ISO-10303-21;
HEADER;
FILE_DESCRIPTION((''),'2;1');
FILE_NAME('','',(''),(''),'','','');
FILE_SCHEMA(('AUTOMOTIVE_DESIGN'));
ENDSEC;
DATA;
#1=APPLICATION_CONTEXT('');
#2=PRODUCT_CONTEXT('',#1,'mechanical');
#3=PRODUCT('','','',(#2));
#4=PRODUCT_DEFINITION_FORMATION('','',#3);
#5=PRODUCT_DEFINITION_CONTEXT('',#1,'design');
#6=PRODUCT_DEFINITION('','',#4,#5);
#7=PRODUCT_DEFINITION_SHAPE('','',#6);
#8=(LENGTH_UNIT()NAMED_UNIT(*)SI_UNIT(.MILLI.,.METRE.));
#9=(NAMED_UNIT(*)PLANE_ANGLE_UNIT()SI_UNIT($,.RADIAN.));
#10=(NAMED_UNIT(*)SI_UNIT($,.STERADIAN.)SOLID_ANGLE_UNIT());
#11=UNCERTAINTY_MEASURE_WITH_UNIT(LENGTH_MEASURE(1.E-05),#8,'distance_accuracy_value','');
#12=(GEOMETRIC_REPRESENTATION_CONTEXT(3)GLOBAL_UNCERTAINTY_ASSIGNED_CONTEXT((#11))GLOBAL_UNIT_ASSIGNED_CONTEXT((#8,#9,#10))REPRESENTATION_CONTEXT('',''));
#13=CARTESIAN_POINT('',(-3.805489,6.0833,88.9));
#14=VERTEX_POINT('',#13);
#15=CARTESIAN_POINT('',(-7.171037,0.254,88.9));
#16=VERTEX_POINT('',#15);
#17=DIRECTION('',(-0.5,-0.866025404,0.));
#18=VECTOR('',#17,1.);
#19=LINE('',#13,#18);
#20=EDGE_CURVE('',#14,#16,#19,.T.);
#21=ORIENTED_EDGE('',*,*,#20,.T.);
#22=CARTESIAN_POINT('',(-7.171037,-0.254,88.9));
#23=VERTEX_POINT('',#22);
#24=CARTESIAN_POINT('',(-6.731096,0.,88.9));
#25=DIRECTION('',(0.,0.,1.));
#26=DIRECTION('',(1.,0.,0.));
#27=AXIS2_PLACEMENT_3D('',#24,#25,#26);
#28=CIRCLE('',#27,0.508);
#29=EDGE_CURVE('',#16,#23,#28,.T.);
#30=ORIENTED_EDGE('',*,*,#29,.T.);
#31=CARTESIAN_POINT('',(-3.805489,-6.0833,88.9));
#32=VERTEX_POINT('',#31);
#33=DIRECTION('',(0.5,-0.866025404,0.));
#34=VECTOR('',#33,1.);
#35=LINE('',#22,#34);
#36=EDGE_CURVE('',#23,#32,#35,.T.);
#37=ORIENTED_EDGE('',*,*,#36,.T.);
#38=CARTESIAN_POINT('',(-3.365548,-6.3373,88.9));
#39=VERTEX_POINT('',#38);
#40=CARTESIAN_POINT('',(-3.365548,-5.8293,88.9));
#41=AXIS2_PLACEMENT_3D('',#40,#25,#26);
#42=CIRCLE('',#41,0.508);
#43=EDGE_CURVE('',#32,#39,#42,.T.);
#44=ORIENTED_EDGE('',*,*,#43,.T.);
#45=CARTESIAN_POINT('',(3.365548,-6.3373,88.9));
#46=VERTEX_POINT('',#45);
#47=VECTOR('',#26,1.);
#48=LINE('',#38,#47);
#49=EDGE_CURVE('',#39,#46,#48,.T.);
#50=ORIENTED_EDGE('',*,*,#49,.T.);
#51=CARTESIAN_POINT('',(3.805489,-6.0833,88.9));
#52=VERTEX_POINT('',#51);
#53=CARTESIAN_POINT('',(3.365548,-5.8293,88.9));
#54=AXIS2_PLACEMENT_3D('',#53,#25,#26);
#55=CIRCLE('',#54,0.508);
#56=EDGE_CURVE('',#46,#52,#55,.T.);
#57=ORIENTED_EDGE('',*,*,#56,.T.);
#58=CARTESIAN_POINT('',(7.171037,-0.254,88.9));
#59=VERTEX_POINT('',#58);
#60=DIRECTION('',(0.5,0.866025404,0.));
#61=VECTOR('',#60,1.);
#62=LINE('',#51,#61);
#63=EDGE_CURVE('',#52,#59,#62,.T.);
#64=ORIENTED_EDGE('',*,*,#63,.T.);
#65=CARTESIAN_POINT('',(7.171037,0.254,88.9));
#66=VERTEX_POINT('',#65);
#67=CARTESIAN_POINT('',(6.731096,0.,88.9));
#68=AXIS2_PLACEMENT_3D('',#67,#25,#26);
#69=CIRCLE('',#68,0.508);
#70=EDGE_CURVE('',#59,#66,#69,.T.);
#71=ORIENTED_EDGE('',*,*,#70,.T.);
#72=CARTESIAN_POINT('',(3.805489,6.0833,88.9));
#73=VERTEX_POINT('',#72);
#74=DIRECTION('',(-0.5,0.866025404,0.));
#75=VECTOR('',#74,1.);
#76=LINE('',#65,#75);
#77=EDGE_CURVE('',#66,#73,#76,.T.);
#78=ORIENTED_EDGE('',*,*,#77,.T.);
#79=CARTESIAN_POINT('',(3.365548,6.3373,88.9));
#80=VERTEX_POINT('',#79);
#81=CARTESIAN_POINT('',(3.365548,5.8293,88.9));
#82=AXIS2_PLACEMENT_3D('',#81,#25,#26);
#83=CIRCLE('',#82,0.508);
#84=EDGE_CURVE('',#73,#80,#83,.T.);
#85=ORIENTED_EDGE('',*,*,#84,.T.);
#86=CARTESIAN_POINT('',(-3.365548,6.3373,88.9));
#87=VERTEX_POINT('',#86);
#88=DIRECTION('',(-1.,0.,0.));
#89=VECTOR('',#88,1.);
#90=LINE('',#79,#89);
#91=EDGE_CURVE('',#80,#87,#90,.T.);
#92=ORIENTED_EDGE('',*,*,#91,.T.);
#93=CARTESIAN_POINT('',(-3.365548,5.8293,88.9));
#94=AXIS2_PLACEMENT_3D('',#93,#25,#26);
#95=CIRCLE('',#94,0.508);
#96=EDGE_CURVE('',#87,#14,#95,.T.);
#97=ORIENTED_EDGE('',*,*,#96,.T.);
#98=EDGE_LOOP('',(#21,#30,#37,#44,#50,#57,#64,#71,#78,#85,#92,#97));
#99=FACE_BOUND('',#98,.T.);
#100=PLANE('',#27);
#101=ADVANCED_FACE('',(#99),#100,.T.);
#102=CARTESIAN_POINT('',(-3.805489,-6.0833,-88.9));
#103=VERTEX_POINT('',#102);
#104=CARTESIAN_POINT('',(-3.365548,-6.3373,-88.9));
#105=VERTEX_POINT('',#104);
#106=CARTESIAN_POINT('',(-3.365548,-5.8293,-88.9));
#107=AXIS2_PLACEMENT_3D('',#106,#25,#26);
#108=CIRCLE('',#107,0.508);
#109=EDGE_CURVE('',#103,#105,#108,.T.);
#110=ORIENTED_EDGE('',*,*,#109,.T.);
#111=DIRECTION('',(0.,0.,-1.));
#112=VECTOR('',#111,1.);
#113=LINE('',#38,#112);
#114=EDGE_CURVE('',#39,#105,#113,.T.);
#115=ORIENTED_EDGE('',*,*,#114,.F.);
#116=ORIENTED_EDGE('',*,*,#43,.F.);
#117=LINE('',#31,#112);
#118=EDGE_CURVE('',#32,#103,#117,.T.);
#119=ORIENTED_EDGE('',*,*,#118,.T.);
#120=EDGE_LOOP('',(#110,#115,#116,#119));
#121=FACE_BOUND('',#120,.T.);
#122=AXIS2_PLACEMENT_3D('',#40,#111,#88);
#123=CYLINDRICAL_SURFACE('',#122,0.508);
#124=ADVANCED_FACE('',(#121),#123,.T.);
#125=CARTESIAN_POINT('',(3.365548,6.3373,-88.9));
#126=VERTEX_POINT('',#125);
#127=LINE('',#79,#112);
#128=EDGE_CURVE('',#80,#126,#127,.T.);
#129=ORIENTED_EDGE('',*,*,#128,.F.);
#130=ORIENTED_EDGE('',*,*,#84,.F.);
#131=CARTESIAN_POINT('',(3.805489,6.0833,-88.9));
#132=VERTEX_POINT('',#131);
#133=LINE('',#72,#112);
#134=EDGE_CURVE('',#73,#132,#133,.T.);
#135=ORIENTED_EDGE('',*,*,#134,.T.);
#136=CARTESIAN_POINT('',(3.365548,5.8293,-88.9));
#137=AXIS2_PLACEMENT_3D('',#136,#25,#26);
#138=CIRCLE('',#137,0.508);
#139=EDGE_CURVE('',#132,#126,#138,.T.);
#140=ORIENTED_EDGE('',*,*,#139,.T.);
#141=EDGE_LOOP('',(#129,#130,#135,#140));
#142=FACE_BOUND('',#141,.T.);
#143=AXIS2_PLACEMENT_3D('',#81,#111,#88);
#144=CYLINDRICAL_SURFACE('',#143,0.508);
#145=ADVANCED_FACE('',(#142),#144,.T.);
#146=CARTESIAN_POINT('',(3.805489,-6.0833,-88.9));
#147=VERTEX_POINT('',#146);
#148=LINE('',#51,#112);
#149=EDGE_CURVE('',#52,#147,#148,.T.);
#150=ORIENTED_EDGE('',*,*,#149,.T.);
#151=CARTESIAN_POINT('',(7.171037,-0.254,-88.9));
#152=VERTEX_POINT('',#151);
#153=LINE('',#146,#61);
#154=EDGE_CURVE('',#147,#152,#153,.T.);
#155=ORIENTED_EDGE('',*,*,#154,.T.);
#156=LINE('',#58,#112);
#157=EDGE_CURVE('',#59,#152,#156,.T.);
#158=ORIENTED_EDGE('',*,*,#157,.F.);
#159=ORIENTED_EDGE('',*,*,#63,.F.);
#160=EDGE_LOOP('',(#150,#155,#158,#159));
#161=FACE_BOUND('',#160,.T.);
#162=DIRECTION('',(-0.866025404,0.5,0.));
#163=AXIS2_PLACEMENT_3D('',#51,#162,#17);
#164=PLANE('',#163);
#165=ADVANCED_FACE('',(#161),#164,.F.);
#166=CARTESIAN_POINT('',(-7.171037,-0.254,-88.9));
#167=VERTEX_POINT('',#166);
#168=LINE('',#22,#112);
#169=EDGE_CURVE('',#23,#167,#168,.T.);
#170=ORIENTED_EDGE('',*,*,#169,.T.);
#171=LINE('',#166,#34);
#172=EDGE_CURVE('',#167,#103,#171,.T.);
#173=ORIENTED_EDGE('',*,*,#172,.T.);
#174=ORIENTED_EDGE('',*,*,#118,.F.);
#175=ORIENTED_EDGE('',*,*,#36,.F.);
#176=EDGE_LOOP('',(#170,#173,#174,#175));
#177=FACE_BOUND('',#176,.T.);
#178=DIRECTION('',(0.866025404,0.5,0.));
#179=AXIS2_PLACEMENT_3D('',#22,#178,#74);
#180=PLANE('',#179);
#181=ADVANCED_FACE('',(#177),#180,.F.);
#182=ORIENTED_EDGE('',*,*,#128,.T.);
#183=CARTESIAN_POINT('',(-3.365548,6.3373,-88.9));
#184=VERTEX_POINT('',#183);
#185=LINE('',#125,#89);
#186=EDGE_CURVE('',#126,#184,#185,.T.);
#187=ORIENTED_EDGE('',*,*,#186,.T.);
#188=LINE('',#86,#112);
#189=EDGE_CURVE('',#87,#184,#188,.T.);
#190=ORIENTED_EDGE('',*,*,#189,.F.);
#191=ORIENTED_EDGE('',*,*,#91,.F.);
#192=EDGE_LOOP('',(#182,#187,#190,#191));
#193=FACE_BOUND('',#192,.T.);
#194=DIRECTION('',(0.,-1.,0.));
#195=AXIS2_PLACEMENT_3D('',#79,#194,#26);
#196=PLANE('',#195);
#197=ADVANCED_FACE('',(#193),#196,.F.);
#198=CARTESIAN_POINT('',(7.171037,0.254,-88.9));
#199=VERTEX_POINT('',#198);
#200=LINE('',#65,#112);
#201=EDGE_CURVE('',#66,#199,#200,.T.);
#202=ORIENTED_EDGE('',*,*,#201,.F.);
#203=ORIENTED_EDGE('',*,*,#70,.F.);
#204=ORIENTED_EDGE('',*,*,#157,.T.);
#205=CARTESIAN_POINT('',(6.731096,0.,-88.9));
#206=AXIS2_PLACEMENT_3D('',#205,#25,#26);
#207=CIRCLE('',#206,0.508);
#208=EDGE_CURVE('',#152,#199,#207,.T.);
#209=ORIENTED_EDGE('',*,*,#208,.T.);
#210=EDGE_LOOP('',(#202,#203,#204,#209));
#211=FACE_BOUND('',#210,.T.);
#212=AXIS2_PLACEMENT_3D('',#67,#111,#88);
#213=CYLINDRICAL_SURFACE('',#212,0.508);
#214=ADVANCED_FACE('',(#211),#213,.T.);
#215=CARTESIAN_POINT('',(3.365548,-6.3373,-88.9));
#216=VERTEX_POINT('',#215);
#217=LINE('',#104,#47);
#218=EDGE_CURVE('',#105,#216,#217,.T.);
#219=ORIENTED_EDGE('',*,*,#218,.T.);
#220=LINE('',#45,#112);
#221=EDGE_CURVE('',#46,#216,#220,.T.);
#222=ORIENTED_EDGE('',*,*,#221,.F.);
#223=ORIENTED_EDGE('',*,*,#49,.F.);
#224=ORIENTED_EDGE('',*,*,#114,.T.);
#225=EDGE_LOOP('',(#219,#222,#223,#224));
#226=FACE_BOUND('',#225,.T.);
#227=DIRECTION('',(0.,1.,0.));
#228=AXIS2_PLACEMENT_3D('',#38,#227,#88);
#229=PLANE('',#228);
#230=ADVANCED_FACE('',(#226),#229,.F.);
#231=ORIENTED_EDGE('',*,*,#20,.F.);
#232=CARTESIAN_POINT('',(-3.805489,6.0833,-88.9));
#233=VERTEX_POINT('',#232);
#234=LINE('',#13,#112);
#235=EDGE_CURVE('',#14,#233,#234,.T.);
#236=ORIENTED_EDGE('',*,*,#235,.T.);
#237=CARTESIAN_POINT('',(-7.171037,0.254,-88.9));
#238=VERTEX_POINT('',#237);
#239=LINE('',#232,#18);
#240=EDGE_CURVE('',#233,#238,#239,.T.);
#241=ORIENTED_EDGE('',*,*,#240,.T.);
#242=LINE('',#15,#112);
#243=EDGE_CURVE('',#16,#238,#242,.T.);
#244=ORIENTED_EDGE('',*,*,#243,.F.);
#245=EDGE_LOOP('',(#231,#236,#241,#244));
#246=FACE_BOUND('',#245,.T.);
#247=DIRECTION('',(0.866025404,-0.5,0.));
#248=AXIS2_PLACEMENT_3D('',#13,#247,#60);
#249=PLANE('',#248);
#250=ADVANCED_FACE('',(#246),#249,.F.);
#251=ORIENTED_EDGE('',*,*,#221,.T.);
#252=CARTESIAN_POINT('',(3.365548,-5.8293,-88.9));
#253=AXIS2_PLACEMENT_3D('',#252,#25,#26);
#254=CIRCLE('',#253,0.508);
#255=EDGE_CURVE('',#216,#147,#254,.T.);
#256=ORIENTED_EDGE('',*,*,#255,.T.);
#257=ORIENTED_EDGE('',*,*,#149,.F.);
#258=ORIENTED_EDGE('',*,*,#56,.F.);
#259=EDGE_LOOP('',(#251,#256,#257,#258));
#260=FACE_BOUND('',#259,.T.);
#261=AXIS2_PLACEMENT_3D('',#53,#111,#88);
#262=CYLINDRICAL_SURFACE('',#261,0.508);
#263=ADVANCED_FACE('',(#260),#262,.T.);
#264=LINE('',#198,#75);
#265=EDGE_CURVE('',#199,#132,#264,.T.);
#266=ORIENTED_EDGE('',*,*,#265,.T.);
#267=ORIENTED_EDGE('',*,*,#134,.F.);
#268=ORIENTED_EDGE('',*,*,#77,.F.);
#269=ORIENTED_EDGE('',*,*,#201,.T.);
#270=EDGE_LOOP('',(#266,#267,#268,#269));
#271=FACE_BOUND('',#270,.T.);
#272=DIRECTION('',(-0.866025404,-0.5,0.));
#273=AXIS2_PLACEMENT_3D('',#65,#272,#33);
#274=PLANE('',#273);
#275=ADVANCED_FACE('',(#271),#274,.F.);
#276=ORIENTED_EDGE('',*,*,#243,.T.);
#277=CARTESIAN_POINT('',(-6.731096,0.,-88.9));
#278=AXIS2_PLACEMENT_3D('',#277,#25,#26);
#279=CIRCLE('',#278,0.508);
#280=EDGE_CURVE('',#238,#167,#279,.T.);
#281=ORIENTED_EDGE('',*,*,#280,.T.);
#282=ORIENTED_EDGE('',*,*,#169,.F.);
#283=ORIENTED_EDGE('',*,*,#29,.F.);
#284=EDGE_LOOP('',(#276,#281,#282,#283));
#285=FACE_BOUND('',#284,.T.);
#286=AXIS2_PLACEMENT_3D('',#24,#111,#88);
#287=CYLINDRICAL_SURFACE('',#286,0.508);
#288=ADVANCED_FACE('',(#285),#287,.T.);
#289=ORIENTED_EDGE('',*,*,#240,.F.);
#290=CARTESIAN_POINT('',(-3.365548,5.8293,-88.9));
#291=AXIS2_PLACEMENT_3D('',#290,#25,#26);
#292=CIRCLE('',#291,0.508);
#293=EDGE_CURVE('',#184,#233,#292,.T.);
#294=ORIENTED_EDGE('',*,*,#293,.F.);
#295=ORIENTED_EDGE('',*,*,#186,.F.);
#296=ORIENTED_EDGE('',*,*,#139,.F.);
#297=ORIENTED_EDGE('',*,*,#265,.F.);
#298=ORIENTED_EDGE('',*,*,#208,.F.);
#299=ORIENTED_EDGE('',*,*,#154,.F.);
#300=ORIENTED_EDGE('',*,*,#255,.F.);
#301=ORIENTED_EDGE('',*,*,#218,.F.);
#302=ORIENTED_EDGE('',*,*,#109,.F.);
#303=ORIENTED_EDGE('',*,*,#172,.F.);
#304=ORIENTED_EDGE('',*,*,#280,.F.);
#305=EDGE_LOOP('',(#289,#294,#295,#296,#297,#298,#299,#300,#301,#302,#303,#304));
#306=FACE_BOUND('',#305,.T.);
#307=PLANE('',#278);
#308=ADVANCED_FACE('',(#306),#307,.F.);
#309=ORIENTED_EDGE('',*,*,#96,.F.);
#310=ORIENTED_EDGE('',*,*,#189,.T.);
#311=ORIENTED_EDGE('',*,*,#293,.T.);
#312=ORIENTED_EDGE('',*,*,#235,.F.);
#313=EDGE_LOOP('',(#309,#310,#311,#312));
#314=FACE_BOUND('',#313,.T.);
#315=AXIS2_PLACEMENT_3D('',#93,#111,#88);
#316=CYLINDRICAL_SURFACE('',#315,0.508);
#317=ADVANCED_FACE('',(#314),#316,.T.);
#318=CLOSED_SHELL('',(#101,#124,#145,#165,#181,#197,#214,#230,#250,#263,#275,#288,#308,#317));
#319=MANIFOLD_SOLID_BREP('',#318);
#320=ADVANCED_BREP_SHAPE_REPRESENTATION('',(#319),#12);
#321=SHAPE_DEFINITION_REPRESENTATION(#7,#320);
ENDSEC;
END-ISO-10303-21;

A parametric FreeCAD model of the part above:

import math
import FreeCAD as App
import Part
import Sketcher
Q = App.Units.Quantity

doc = App.newDocument("Part")
body = doc.addObject("PartDesign::Body", "Body")

# Sketch on XY plane
sketch1 = doc.addObject("Sketcher::SketchObject", "Sketch")
body.addObject(sketch1)
sketch1.AttachmentSupport = (doc.XY_Plane, [""])
sketch1.MapMode = "FlatFace"
sketch1.addGeometry(Part.LineSegment(App.Vector(-7.2, -0.3, 0), App.Vector(-3.8, -6.1, 0)), False)
sketch1.addGeometry(Part.ArcOfCircle(Part.Circle(App.Vector(-3.4, -5.8, 0), App.Vector(0, 0, 1), 0.5), math.radians(-150), math.radians(-90)), False)
sketch1.addGeometry(Part.LineSegment(App.Vector(-3.4, -6.3, 0), App.Vector(3.4, -6.3, 0)), False)
sketch1.addGeometry(Part.ArcOfCircle(Part.Circle(App.Vector(3.4, -5.8, 0), App.Vector(0, 0, 1), 0.5), math.radians(-90), math.radians(-30)), False)
sketch1.addGeometry(Part.LineSegment(App.Vector(3.8, -6.1, 0), App.Vector(7.2, -0.3, 0)), False)
sketch1.addGeometry(Part.ArcOfCircle(Part.Circle(App.Vector(6.7, 0, 0), App.Vector(0, 0, 1), 0.5), math.radians(-30), math.radians(30)), False)
sketch1.addGeometry(Part.LineSegment(App.Vector(7.2, 0.3, 0), App.Vector(3.8, 6.1, 0)), False)
sketch1.addGeometry(Part.ArcOfCircle(Part.Circle(App.Vector(3.4, 5.8, 0), App.Vector(0, 0, 1), 0.5), math.radians(30), math.radians(90)), False)
sketch1.addGeometry(Part.LineSegment(App.Vector(3.4, 6.3, 0), App.Vector(-3.4, 6.3, 0)), False)
sketch1.addGeometry(Part.ArcOfCircle(Part.Circle(App.Vector(-3.4, 5.8, 0), App.Vector(0, 0, 1), 0.5), math.radians(90), math.radians(150)), False)
sketch1.addGeometry(Part.LineSegment(App.Vector(-3.8, 6.1, 0), App.Vector(-7.2, 0.3, 0)), False)
sketch1.addGeometry(Part.ArcOfCircle(Part.Circle(App.Vector(-6.7, 0, 0), App.Vector(0, 0, 1), 0.5), math.radians(150), math.radians(210)), False)
sketch1.addConstraint(Sketcher.Constraint("Tangent", 0, 2, 1, 1))
sketch1.addConstraint(Sketcher.Constraint("Tangent", 1, 2, 2, 1))
sketch1.addConstraint(Sketcher.Constraint("Tangent", 2, 2, 3, 1))
sketch1.addConstraint(Sketcher.Constraint("Tangent", 3, 2, 4, 1))
sketch1.addConstraint(Sketcher.Constraint("Tangent", 4, 2, 5, 1))
sketch1.addConstraint(Sketcher.Constraint("Tangent", 5, 2, 6, 1))
sketch1.addConstraint(Sketcher.Constraint("Tangent", 6, 2, 7, 1))
sketch1.addConstraint(Sketcher.Constraint("Tangent", 7, 2, 8, 1))
sketch1.addConstraint(Sketcher.Constraint("Tangent", 8, 2, 9, 1))
sketch1.addConstraint(Sketcher.Constraint("Tangent", 9, 2, 10, 1))
sketch1.addConstraint(Sketcher.Constraint("Tangent", 10, 2, 11, 1))
sketch1.addConstraint(Sketcher.Constraint("Tangent", 11, 2, 0, 1))
sketch1.addConstraint(Sketcher.Constraint("Horizontal", 2))
sketch1.addConstraint(Sketcher.Constraint("Horizontal", 8))
sketch1.addConstraint(Sketcher.Constraint("Equal", 1, 3))
sketch1.addConstraint(Sketcher.Constraint("Equal", 3, 5))
sketch1.addConstraint(Sketcher.Constraint("Equal", 5, 7))
sketch1.addConstraint(Sketcher.Constraint("Equal", 7, 9))
sketch1.addConstraint(Sketcher.Constraint("Equal", 9, 11))
sketch1.addConstraint(Sketcher.Constraint("Symmetric", 1, 3, 7, 3, -1, 1))
sketch1.addConstraint(Sketcher.Constraint("Symmetric", 5, 3, 11, 3, -1, 1))
sketch1.addConstraint(Sketcher.Constraint("Symmetric", 0, 2, 3, 2, -2))
sketch1.addConstraint(Sketcher.Constraint("Parallel", 4, 10))
sketch1.addConstraint(Sketcher.Constraint("Radius", 1, Q("0.02 in")))
sketch1.addConstraint(Sketcher.Constraint("Angle", 0, Q("-60 deg")))
sketch1.addConstraint(Sketcher.Constraint("DistanceY", 3, 3, 7, 3, Q("0.459 in")))
sketch1.addConstraint(Sketcher.Constraint("DistanceX", 2, 1, 2, 2, Q("6.731096 mm")))
pad1 = doc.addObject("PartDesign::Pad", "Pad")
body.addObject(pad1)
pad1.Profile = sketch1
pad1.Length = Q("7 in")
pad1.Midplane = True

doc.recompute()
